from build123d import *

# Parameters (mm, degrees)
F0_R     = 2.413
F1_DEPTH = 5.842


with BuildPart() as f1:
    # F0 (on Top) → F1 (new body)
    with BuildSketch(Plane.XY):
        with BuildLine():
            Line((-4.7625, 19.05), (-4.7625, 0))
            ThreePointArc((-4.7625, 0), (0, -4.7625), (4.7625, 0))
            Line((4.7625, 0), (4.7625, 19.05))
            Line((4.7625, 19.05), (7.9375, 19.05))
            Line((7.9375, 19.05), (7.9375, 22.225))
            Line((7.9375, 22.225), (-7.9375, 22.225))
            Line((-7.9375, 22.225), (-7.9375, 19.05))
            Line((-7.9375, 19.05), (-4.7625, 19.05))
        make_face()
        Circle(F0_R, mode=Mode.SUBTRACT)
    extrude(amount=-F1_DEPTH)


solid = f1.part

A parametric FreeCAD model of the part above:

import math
import FreeCAD as App
import Part
import Sketcher
from FreeCAD import Vector
Q = App.Units.Quantity

doc = App.newDocument("Part")
body = doc.addObject("PartDesign::Body", "Body")

# Sketch on XY plane
sketch1 = body.newObject("Sketcher::SketchObject", "Sketch")
sketch1.AttachmentSupport = (doc.getObject("XY_Plane"), [""])
sketch1.MapMode = "FlatFace"
sketch1.addGeometry([
    Part.LineSegment(Vector(-4.8, 19.1, 0), Vector(-4.8, 0, 0)),  # 0
    Part.ArcOfCircle(Part.Circle(Vector(0, 0, 0), Vector(0, 0, 1), 4.8), math.radians(180), math.radians(360)),  # 1
    Part.LineSegment(Vector(4.8, 0, 0), Vector(4.8, 19.1, 0)),  # 2
    Part.LineSegment(Vector(4.8, 19.1, 0), Vector(7.9, 19.1, 0)),  # 3
    Part.LineSegment(Vector(7.9, 19.1, 0), Vector(7.9, 22.2, 0)),  # 4
    Part.LineSegment(Vector(7.9, 22.2, 0), Vector(-7.9, 22.2, 0)),  # 5
    Part.LineSegment(Vector(-7.9, 22.2, 0), Vector(-7.9, 19.1, 0)),  # 6
    Part.LineSegment(Vector(-7.9, 19.1, 0), Vector(-4.8, 19.1, 0)),  # 7
    Part.Circle(Vector(0, 0, 0), Vector(0, 0, 1), 2.4),  # 8
], False)
sketch1.addConstraint([
    Sketcher.Constraint("Tangent", 0, 2, 1, 1),
    Sketcher.Constraint("Tangent", 1, 2, 2, 1),
    Sketcher.Constraint("Coincident", 2, 2, 3, 1),
    Sketcher.Constraint("Coincident", 3, 2, 4, 1),
    Sketcher.Constraint("Coincident", 4, 2, 5, 1),
    Sketcher.Constraint("Coincident", 5, 2, 6, 1),
    Sketcher.Constraint("Coincident", 6, 2, 7, 1),
    Sketcher.Constraint("Coincident", 7, 2, 0, 1),
    Sketcher.Constraint("Vertical", 0),
    Sketcher.Constraint("Vertical", 2),
    Sketcher.Constraint("Horizontal", 3),
    Sketcher.Constraint("Vertical", 4),
    Sketcher.Constraint("Horizontal", 5),
    Sketcher.Constraint("Vertical", 6),
    Sketcher.Constraint("Horizontal", 7),
    Sketcher.Constraint("Coincident", 1, 3, -1, 1),
    Sketcher.Constraint("Coincident", 8, 3, -1, 1),
    Sketcher.Constraint("Symmetric", 3, 2, 6, 2, -2),
    Sketcher.Constraint("Equal", 7, 4),
    Sketcher.Constraint("Diameter", 8, Q("0.19 in")),
    Sketcher.Constraint("Radius", 1, Q("0.1875 in")),
    Sketcher.Constraint("DistanceY", 0, 2, 0, 1, Q("0.75 in")),
    Sketcher.Constraint("DistanceX", 0, 2, 3, 2, Q("0.5 in")),
])
pad1 = body.newObject("PartDesign::Pad", "Pad")
pad1.Profile = sketch1
pad1.Length = Q("0.23 in")
pad1.Reversed = True

doc.recompute()
